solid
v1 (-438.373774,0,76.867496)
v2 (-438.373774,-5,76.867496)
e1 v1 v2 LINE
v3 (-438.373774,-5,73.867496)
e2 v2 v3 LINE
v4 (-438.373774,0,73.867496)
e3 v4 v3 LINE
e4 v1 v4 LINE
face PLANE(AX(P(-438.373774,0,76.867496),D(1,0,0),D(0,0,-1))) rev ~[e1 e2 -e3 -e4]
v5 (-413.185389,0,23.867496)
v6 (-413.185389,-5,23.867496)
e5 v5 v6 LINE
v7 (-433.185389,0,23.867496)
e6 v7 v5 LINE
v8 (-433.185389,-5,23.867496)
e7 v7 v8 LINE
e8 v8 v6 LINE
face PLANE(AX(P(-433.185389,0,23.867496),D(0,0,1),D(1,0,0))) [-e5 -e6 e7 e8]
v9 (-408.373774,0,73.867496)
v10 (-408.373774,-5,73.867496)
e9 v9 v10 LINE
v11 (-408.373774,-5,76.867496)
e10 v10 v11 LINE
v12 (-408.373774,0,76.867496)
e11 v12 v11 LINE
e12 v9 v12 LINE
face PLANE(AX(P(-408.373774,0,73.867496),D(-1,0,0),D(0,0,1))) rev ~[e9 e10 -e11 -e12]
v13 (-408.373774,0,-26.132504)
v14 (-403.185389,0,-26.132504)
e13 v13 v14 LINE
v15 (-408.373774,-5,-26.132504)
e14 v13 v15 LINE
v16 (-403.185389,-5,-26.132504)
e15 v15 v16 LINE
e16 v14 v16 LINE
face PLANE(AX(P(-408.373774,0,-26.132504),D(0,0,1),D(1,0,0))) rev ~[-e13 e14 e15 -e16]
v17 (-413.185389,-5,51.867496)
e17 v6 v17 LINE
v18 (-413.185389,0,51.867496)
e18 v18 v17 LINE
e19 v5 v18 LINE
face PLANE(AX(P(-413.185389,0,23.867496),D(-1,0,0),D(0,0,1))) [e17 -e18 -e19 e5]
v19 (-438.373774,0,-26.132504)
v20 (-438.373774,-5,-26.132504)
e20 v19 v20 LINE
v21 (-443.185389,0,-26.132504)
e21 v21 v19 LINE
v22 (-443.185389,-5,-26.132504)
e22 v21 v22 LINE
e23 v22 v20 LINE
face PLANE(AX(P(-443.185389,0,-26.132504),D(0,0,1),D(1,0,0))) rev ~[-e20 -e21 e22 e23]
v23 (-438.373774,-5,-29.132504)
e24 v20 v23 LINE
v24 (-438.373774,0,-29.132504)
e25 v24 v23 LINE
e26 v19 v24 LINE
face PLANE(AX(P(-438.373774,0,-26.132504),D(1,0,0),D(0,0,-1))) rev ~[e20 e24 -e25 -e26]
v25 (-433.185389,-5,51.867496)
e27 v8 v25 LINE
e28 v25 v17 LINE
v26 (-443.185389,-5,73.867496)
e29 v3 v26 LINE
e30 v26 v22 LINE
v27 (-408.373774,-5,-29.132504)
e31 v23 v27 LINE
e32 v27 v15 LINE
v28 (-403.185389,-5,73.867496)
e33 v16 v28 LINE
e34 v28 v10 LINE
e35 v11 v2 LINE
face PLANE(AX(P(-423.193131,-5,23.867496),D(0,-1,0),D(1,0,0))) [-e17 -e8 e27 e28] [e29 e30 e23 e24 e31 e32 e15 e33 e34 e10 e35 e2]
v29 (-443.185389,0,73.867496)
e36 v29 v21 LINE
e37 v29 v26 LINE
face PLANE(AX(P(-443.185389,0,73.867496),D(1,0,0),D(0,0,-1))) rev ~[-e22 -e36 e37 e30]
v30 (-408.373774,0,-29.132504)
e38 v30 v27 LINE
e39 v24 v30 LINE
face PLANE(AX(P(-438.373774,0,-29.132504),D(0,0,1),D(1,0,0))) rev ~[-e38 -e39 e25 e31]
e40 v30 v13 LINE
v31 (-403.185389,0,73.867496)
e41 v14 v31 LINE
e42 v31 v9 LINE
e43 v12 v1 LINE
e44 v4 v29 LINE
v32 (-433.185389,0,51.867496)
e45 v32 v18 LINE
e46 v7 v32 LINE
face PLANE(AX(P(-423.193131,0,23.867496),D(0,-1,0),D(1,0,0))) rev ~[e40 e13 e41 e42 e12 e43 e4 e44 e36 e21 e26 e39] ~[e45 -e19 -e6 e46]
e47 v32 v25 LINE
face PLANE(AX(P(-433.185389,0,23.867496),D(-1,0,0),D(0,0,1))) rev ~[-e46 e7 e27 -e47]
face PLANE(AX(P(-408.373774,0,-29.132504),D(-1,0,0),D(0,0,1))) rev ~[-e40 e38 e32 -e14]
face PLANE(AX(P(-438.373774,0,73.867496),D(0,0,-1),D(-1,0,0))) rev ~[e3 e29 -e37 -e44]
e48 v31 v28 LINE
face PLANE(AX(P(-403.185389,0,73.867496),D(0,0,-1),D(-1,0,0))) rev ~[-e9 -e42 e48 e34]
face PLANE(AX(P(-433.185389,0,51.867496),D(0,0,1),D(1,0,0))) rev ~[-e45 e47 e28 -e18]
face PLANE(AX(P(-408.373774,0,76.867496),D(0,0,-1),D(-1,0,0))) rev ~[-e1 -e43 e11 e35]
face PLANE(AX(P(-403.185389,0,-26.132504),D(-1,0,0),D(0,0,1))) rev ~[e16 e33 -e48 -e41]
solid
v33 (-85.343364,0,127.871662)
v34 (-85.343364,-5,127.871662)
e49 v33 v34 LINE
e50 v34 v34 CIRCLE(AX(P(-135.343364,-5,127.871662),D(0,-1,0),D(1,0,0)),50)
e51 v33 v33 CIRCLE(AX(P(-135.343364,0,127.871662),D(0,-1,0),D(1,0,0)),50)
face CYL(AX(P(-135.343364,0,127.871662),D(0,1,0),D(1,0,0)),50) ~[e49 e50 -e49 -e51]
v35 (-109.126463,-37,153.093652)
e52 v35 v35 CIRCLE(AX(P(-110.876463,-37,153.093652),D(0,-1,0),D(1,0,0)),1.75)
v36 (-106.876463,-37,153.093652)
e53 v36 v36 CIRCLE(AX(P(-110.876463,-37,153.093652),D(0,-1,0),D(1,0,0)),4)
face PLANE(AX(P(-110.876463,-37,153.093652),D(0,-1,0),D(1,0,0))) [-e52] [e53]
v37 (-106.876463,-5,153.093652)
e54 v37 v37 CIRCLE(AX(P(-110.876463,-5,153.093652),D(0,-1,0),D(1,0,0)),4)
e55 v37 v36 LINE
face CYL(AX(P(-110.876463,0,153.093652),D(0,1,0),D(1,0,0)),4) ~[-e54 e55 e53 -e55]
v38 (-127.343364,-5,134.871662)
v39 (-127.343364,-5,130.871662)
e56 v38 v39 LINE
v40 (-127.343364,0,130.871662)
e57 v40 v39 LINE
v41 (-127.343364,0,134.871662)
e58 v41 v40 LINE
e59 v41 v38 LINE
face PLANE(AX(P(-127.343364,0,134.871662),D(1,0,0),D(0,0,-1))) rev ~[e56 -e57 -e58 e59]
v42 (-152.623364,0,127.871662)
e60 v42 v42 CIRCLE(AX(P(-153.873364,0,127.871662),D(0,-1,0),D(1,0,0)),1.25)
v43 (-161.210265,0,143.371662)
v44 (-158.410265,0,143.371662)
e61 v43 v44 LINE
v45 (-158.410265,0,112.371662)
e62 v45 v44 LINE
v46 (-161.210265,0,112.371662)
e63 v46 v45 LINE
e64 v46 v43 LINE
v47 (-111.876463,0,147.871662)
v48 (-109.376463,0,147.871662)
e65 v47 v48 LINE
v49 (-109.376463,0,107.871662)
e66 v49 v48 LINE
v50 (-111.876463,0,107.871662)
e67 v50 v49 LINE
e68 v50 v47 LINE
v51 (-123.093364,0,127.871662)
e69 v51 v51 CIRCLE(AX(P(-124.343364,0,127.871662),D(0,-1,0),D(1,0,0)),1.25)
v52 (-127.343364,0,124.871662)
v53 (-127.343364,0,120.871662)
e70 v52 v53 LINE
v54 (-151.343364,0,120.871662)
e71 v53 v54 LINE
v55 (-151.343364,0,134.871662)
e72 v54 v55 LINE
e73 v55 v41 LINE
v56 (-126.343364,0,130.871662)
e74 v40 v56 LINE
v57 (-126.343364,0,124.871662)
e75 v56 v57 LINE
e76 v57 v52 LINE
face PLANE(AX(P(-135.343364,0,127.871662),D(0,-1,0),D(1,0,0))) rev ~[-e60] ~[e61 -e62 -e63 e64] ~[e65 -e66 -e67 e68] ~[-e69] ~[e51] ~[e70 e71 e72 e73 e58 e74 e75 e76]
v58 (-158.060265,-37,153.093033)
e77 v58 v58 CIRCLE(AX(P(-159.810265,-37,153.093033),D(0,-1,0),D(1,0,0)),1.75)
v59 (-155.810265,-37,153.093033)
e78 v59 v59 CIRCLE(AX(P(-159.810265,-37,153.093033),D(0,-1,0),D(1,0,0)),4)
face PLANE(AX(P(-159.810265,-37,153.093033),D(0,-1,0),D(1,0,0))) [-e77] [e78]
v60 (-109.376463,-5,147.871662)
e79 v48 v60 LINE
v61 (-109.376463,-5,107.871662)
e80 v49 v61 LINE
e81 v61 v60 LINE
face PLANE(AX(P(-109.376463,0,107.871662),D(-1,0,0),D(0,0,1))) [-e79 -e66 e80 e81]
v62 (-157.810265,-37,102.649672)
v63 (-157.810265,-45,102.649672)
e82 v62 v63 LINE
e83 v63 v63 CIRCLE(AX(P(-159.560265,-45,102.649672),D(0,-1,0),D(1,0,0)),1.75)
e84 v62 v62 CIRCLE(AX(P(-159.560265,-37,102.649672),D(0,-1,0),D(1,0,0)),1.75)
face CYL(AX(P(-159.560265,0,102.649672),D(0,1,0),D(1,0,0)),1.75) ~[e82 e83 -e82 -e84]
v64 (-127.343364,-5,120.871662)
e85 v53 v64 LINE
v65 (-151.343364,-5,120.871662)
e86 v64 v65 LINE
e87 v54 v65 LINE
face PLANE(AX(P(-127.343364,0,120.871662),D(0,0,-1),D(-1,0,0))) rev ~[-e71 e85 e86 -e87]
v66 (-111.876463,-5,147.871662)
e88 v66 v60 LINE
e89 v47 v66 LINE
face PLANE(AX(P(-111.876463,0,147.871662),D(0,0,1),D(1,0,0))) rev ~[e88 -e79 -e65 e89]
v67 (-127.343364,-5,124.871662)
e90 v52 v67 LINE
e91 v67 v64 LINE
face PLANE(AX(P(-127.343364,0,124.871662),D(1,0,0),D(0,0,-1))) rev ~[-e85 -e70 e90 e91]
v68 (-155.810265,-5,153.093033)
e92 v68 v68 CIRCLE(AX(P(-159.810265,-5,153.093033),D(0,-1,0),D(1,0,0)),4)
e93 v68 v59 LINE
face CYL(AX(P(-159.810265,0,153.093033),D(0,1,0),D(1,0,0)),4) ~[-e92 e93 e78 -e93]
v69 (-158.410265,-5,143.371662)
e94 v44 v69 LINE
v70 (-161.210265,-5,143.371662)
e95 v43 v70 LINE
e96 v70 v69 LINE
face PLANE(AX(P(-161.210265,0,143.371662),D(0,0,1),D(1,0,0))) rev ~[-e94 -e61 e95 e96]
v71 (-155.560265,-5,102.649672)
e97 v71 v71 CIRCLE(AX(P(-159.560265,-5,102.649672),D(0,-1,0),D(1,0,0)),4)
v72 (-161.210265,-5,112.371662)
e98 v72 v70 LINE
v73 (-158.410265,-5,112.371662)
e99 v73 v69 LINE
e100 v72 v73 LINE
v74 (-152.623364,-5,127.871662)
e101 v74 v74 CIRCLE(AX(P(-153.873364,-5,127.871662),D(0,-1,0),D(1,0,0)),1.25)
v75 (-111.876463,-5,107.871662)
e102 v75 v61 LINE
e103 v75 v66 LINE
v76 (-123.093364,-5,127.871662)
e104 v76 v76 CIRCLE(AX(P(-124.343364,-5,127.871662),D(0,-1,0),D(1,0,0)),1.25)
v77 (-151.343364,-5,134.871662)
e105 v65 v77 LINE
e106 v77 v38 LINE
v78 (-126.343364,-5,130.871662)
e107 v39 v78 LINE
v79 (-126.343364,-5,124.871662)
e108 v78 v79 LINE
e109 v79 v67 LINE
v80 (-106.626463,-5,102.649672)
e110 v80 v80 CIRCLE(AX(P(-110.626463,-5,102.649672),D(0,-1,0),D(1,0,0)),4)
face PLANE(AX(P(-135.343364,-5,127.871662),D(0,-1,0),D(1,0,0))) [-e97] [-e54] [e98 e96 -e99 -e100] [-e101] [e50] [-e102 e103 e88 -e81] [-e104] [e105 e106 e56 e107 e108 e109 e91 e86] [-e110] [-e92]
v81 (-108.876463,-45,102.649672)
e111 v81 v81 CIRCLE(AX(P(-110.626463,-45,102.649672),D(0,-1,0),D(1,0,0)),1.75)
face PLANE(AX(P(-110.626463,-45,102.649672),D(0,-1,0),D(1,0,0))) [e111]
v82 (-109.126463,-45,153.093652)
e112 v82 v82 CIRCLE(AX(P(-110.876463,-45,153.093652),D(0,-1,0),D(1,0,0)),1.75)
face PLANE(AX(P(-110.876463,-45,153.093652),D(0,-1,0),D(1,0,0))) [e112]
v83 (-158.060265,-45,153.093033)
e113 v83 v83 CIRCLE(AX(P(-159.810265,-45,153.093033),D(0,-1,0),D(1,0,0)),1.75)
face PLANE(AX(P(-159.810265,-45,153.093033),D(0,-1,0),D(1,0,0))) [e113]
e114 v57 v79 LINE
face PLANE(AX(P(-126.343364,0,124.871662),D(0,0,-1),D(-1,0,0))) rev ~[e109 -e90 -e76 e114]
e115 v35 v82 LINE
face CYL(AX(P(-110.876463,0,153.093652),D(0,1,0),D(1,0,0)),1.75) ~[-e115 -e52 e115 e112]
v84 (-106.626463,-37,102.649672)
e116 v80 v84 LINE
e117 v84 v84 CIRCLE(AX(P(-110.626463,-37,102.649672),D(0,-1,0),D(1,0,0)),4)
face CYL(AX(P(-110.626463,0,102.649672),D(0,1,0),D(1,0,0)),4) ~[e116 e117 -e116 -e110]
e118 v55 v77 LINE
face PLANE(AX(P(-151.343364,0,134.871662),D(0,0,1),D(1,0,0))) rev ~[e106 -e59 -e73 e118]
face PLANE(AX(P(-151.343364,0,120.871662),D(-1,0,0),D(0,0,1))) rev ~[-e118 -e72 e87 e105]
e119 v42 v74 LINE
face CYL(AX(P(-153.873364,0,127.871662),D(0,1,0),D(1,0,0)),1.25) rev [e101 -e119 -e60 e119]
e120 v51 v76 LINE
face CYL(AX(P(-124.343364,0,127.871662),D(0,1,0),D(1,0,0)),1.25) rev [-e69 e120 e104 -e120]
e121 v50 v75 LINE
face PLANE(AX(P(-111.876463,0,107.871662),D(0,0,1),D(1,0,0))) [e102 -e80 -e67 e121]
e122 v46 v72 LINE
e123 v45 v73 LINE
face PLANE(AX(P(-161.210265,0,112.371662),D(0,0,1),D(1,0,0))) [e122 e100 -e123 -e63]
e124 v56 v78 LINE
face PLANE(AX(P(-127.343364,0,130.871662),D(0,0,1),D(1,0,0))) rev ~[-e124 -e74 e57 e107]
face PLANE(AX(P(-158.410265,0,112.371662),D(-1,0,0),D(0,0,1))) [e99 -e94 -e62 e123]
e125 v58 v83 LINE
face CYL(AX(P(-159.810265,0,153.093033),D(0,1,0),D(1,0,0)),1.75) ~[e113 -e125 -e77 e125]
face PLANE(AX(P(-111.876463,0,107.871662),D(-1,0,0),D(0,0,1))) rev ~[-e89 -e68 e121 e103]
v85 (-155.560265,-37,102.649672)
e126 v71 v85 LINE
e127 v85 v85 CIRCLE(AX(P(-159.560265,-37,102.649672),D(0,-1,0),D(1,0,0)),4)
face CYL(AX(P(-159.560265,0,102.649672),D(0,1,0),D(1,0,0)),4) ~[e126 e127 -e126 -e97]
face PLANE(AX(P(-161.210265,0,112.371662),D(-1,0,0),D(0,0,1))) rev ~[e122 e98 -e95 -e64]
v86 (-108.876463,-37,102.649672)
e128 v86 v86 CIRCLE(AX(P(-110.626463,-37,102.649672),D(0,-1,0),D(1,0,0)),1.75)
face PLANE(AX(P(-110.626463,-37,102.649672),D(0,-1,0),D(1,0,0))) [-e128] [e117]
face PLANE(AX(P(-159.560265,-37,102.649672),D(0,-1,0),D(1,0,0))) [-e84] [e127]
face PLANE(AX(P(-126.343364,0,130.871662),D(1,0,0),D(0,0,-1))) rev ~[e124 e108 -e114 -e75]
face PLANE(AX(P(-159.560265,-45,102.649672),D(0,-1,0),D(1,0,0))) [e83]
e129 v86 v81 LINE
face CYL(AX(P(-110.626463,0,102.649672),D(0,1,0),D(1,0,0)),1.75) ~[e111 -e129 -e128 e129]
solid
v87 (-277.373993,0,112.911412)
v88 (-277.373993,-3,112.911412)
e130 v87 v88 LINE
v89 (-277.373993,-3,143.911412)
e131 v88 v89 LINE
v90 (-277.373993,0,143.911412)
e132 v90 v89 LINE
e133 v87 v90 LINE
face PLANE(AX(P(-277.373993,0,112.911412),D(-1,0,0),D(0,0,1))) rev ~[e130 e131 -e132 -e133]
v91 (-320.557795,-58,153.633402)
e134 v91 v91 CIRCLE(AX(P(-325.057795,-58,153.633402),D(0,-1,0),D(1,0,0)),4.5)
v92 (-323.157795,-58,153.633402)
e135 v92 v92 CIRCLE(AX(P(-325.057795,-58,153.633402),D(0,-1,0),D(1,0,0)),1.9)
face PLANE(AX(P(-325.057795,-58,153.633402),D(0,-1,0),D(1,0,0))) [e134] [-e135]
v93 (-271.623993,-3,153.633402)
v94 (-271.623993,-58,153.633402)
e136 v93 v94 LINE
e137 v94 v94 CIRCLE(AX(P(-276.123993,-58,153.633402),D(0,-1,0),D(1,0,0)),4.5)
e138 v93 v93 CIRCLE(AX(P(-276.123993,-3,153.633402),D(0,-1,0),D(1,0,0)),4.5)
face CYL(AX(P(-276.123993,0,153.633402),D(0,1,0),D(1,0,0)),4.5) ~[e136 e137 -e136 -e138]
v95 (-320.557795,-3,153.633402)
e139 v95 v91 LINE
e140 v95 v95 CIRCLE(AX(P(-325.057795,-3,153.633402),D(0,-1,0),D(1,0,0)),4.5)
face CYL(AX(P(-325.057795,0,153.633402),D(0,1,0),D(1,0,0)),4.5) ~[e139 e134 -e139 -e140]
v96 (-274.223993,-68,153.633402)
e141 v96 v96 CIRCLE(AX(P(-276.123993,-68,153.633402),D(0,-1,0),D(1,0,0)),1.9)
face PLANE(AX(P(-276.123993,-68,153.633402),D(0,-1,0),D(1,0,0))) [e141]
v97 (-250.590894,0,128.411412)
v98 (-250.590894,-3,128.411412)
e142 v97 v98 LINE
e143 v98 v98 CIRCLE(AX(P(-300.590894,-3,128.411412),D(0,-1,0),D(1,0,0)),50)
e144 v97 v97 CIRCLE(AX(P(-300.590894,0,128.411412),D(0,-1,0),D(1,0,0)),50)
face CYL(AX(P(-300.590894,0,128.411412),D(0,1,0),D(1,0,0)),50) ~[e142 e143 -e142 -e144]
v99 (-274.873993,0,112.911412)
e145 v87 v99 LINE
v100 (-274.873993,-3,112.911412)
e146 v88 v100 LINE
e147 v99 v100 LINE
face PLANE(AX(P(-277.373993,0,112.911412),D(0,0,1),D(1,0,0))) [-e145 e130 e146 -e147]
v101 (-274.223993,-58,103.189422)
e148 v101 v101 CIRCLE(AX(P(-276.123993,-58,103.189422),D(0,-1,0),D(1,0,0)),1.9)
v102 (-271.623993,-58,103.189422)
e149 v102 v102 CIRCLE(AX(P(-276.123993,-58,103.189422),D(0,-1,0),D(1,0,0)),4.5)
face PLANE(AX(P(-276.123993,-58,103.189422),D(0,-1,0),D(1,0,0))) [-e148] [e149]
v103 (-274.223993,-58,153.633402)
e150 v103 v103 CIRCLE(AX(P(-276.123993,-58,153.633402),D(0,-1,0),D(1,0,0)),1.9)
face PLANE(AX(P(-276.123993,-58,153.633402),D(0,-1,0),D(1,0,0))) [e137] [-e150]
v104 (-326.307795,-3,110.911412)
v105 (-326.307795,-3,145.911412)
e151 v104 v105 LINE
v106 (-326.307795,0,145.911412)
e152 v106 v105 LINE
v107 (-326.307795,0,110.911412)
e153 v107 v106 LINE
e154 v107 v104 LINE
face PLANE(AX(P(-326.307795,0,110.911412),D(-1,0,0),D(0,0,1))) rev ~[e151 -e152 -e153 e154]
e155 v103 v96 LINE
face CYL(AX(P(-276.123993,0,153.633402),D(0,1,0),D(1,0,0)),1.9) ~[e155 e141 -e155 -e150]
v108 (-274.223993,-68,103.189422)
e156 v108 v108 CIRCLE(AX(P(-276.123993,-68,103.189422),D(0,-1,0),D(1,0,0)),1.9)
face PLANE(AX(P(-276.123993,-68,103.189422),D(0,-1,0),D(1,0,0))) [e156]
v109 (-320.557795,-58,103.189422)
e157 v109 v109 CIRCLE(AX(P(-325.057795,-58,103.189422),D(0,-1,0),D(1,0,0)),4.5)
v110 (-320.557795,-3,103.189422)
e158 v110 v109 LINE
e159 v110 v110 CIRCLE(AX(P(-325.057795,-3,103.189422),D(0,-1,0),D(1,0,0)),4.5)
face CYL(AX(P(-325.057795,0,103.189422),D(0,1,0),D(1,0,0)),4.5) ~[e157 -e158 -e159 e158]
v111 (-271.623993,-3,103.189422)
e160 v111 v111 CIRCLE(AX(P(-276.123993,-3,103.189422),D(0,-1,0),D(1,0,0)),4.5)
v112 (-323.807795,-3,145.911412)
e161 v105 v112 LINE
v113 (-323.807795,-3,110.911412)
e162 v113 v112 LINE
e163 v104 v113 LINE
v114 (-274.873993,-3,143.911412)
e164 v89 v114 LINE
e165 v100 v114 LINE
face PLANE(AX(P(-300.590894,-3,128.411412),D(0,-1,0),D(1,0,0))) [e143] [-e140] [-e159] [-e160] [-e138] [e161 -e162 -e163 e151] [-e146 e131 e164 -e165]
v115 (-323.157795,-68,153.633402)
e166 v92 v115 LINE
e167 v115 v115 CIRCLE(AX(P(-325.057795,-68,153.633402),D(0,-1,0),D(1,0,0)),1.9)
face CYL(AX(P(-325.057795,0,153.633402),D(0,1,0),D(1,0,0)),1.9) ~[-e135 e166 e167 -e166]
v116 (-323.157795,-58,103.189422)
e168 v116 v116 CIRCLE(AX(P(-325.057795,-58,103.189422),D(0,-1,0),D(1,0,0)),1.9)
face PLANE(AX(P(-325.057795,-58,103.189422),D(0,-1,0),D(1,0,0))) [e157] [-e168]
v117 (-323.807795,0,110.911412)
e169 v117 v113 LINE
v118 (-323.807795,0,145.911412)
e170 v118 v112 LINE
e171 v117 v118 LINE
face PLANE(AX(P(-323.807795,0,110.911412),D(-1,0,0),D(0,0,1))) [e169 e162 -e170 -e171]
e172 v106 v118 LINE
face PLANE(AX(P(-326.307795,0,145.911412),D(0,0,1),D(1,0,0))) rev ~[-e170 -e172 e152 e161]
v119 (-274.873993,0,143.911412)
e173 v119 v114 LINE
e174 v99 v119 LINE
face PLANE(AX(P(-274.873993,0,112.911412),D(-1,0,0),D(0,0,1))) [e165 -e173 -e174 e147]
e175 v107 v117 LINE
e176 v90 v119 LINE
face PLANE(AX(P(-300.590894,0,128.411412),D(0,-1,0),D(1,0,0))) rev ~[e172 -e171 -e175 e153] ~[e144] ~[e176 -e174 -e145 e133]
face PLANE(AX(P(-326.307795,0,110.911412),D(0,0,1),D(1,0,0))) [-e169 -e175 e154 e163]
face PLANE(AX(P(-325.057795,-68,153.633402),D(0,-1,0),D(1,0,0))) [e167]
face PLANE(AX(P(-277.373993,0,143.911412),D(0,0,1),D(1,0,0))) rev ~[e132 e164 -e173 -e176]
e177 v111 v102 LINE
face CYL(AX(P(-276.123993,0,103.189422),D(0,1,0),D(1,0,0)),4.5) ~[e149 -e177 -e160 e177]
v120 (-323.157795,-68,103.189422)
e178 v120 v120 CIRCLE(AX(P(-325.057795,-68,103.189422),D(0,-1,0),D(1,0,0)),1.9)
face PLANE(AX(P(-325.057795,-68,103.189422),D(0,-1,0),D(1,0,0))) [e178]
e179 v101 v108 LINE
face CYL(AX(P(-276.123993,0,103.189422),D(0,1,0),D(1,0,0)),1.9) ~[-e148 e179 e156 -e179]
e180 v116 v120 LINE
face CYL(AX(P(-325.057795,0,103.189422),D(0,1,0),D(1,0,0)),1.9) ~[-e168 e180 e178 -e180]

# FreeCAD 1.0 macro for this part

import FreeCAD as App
import Part
import Sketcher
from FreeCAD import Vector
Q = App.Units.Quantity

doc = App.newDocument("Part")
body = doc.addObject("PartDesign::Body", "Body")

# Sketch on XZ plane
sketch1 = body.newObject("Sketcher::SketchObject", "Sketch")
sketch1.AttachmentSupport = (doc.getObject("XZ_Plane"), [""])
sketch1.MapMode = "FlatFace"
sketch1.addGeometry(Part.Circle(Vector(-135.3, 127.9, 0), Vector(0, 0, 1), 50), False)
sketch1.addGeometry(Part.Circle(Vector(-159.6, 102.6, 0), Vector(0, 0, 1), 4), False)
sketch1.addGeometry(Part.Circle(Vector(-110.6, 102.6, 0), Vector(0, 0, 1), 4), False)
sketch1.addGeometry(Part.LineSegment(Vector(-158.4, 112.4, 0), Vector(-161.2, 112.4, 0)), False)
sketch1.addGeometry(Part.LineSegment(Vector(-161.2, 112.4, 0), Vector(-161.2, 143.4, 0)), False)
sketch1.addGeometry(Part.LineSegment(Vector(-161.2, 143.4, 0), Vector(-158.4, 143.4, 0)), False)
sketch1.addGeometry(Part.LineSegment(Vector(-158.4, 143.4, 0), Vector(-158.4, 112.4, 0)), False)
sketch1.addGeometry(Part.Circle(Vector(-153.9, 127.9, 0), Vector(0, 0, 1), 1.2), False)
sketch1.addGeometry(Part.LineSegment(Vector(-151.3, 120.9, 0), Vector(-151.3, 134.9, 0)), False)
sketch1.addGeometry(Part.LineSegment(Vector(-151.3, 134.9, 0), Vector(-127.3, 134.9, 0)), False)
sketch1.addGeometry(Part.LineSegment(Vector(-127.3, 134.9, 0), Vector(-127.3, 130.9, 0)), False)
sketch1.addGeometry(Part.LineSegment(Vector(-127.3, 130.9, 0), Vector(-126.3, 130.9, 0)), False)
sketch1.addGeometry(Part.LineSegment(Vector(-126.3, 130.9, 0), Vector(-126.3, 124.9, 0)), False)
sketch1.addGeometry(Part.LineSegment(Vector(-126.3, 124.9, 0), Vector(-127.3, 124.9, 0)), False)
sketch1.addGeometry(Part.LineSegment(Vector(-127.3, 124.9, 0), Vector(-127.3, 120.9, 0)), False)
sketch1.addGeometry(Part.LineSegment(Vector(-127.3, 120.9, 0), Vector(-151.3, 120.9, 0)), False)
sketch1.addGeometry(Part.Circle(Vector(-159.8, 153.1, 0), Vector(0, 0, 1), 4), False)
sketch1.addGeometry(Part.Circle(Vector(-124.3, 127.9, 0), Vector(0, 0, 1), 1.2), False)
sketch1.addGeometry(Part.LineSegment(Vector(-109.4, 107.9, 0), Vector(-111.9, 107.9, 0)), False)
sketch1.addGeometry(Part.LineSegment(Vector(-111.9, 107.9, 0), Vector(-111.9, 147.9, 0)), False)
sketch1.addGeometry(Part.LineSegment(Vector(-111.9, 147.9, 0), Vector(-109.4, 147.9, 0)), False)
sketch1.addGeometry(Part.LineSegment(Vector(-109.4, 147.9, 0), Vector(-109.4, 107.9, 0)), False)
sketch1.addGeometry(Part.Circle(Vector(-110.9, 153.1, 0), Vector(0, 0, 1), 4), False)
sketch1.addConstraint(Sketcher.Constraint("Coincident", 3, 2, 4, 1))
sketch1.addConstraint(Sketcher.Constraint("Coincident", 4, 2, 5, 1))
sketch1.addConstraint(Sketcher.Constraint("Coincident", 5, 2, 6, 1))
sketch1.addConstraint(Sketcher.Constraint("Coincident", 6, 2, 3, 1))
sketch1.addConstraint(Sketcher.Constraint("Coincident", 8, 2, 9, 1))
sketch1.addConstraint(Sketcher.Constraint("Coincident", 9, 2, 10, 1))
sketch1.addConstraint(Sketcher.Constraint("Coincident", 10, 2, 11, 1))
sketch1.addConstraint(Sketcher.Constraint("Coincident", 11, 2, 12, 1))
sketch1.addConstraint(Sketcher.Constraint("Coincident", 12, 2, 13, 1))
sketch1.addConstraint(Sketcher.Constraint("Coincident", 13, 2, 14, 1))
sketch1.addConstraint(Sketcher.Constraint("Coincident", 14, 2, 15, 1))
sketch1.addConstraint(Sketcher.Constraint("Coincident", 15, 2, 8, 1))
sketch1.addConstraint(Sketcher.Constraint("Coincident", 18, 2, 19, 1))
sketch1.addConstraint(Sketcher.Constraint("Coincident", 19, 2, 20, 1))
sketch1.addConstraint(Sketcher.Constraint("Coincident", 20, 2, 21, 1))
sketch1.addConstraint(Sketcher.Constraint("Coincident", 21, 2, 18, 1))
sketch1.addConstraint(Sketcher.Constraint("Horizontal", 3))
sketch1.addConstraint(Sketcher.Constraint("Vertical", 4))
sketch1.addConstraint(Sketcher.Constraint("Horizontal", 5))
sketch1.addConstraint(Sketcher.Constraint("Vertical", 6))
sketch1.addConstraint(Sketcher.Constraint("Vertical", 8))
sketch1.addConstraint(Sketcher.Constraint("Horizontal", 9))
sketch1.addConstraint(Sketcher.Constraint("Vertical", 10))
sketch1.addConstraint(Sketcher.Constraint("Horizontal", 11))
sketch1.addConstraint(Sketcher.Constraint("Vertical", 12))
sketch1.addConstraint(Sketcher.Constraint("Horizontal", 13))
sketch1.addConstraint(Sketcher.Constraint("Vertical", 14))
sketch1.addConstraint(Sketcher.Constraint("Horizontal", 15))
sketch1.addConstraint(Sketcher.Constraint("Horizontal", 18))
sketch1.addConstraint(Sketcher.Constraint("Vertical", 19))
sketch1.addConstraint(Sketcher.Constraint("Horizontal", 20))
sketch1.addConstraint(Sketcher.Constraint("Vertical", 21))
sketch1.addConstraint(Sketcher.Constraint("Equal", 1, 2))
sketch1.addConstraint(Sketcher.Constraint("Equal", 2, 16))
sketch1.addConstraint(Sketcher.Constraint("Equal", 7, 17))
sketch1.addConstraint(Sketcher.Constraint("Equal", 16, 22))
sketch1.addConstraint(Sketcher.Constraint("Horizontal", 1, 3, 2, 3))
sketch1.addConstraint(Sketcher.Constraint("Horizontal", 0, 3, 7, 3))
sketch1.addConstraint(Sketcher.Constraint("Horizontal", 7, 3, 17, 3))
sketch1.addConstraint(Sketcher.Constraint("Vertical", 10, 2, 13, 2))
sketch1.addConstraint(Sketcher.Constraint("Equal", 10, 14))
sketch1.addConstraint(Sketcher.Constraint("Diameter", 0, Q("100 mm")))
sketch1.addConstraint(Sketcher.Constraint("Diameter", 1, Q("8 mm")))
sketch1.addConstraint(Sketcher.Constraint("Diameter", 7, Q("2.5 mm")))
sketch1.addConstraint(Sketcher.Constraint("DistanceX", 9, 1, 9, 2, Q("24 mm")))
sketch1.addConstraint(Sketcher.Constraint("DistanceX", 11, 1, 11, 2, Q("1 mm")))
sketch1.addConstraint(Sketcher.Constraint("DistanceY", 4, 1, 4, 2, Q("31 mm")))
sketch1.addConstraint(Sketcher.Constraint("DistanceY", 8, 1, 8, 2, Q("14 mm")))
sketch1.addConstraint(Sketcher.Constraint("DistanceY", 10, 2, 10, 1, Q("4 mm")))
sketch1.addConstraint(Sketcher.Constraint("DistanceY", 19, 1, 19, 2, Q("40 mm")))
sketch1.addConstraint(Sketcher.Constraint("DistanceX", 3, 2, 3, 1, Q("2.8 mm")))
sketch1.addConstraint(Sketcher.Constraint("DistanceX", 18, 2, 18, 1, Q("2.5 mm")))
sketch1.addConstraint(Sketcher.Constraint("DistanceX", 0, 3, 17, 3, Q("11 mm")))
sketch1.addConstraint(Sketcher.Constraint("DistanceY", 7, 3, 8, 2, Q("7 mm")))
sketch1.addConstraint(Sketcher.Constraint("DistanceX", 8, 2, 0, 3, Q("16 mm")))
sketch1.addConstraint(Sketcher.Constraint("DistanceY", 18, 2, 14, 2, Q("13 mm")))
sketch1.addConstraint(Sketcher.Constraint("DistanceX", 19, 2, 22, 3, Q("1 mm")))
sketch1.addConstraint(Sketcher.Constraint("DistanceY", 3, 2, 7, 3, Q("15.5 mm")))
sketch1.addConstraint(Sketcher.Constraint("DistanceX", 3, 2, 16, 3, Q("1.4 mm")))
sketch1.addConstraint(Sketcher.Constraint("DistanceX", 7, 3, 0, 3, Q("18.53 mm")))
sketch1.addConstraint(Sketcher.Constraint("DistanceX", 16, 3, 1, 3, Q("0.25 mm")))
sketch1.addConstraint(Sketcher.Constraint("DistanceX", 22, 3, 2, 3, Q("0.25 mm")))
sketch1.addConstraint(Sketcher.Constraint("DistanceX", 1, 3, 0, 3, Q("24.216901 mm")))
sketch1.addConstraint(Sketcher.Constraint("DistanceX", 0, 3, 2, 3, Q("24.716901 mm")))
sketch1.addConstraint(Sketcher.Constraint("DistanceY", -1, 1, 0, 3, Q("127.871662 mm")))
sketch1.addConstraint(Sketcher.Constraint("DistanceY", -1, 1, 1, 3, Q("102.649672 mm")))
sketch1.addConstraint(Sketcher.Constraint("DistanceY", -1, 1, 22, 3, Q("153.093652 mm")))
sketch1.addConstraint(Sketcher.Constraint("DistanceY", 7, 3, 16, 3, Q("25.221371 mm")))
sketch1.addConstraint(Sketcher.Constraint("DistanceX", 0, 3, -1, 1, Q("135.343364 mm")))
pad1 = body.newObject("PartDesign::Pad", "Pad")
pad1.Profile = sketch1
pad1.Length = 5

# Sketch on XZ plane
sketch2 = body.newObject("Sketcher::SketchObject", "Sketch001")
sketch2.AttachmentSupport = (doc.getObject("XZ_Plane"), [""])
sketch2.MapMode = "FlatFace"
sketch2.addGeometry(Part.Circle(Vector(-159.6, 102.6, 0), Vector(0, 0, 1), 4), False)
sketch2.addGeometry(Part.Circle(Vector(-159.6, 102.6, 0), Vector(0, 0, 1), 1.8), False)
sketch2.addGeometry(Part.Circle(Vector(-110.6, 102.6, 0), Vector(0, 0, 1), 4), False)
sketch2.addGeometry(Part.Circle(Vector(-110.6, 102.6, 0), Vector(0, 0, 1), 1.8), False)
sketch2.addGeometry(Part.Circle(Vector(-110.9, 153.1, 0), Vector(0, 0, 1), 4), False)
sketch2.addGeometry(Part.Circle(Vector(-110.9, 153.1, 0), Vector(0, 0, 1), 1.8), False)
sketch2.addGeometry(Part.Circle(Vector(-159.8, 153.1, 0), Vector(0, 0, 1), 4), False)
sketch2.addGeometry(Part.Circle(Vector(-159.8, 153.1, 0), Vector(0, 0, 1), 1.8), False)
sketch2.addConstraint(Sketcher.Constraint("Coincident", 1, 3, 0, 3))
sketch2.addConstraint(Sketcher.Constraint("Coincident", 3, 3, 2, 3))
sketch2.addConstraint(Sketcher.Constraint("Coincident", 5, 3, 4, 3))
sketch2.addConstraint(Sketcher.Constraint("Coincident", 7, 3, 6, 3))
sketch2.addConstraint(Sketcher.Constraint("Equal", 0, 2))
sketch2.addConstraint(Sketcher.Constraint("Equal", 1, 3))
sketch2.addConstraint(Sketcher.Constraint("Equal", 2, 4))
sketch2.addConstraint(Sketcher.Constraint("Equal", 3, 5))
sketch2.addConstraint(Sketcher.Constraint("Equal", 4, 6))
sketch2.addConstraint(Sketcher.Constraint("Equal", 5, 7))
sketch2.addConstraint(Sketcher.Constraint("Horizontal", 1, 3, 2, 3))
sketch2.addConstraint(Sketcher.Constraint("Diameter", 0, Q("8 mm")))
sketch2.addConstraint(Sketcher.Constraint("Diameter", 1, Q("3.5 mm")))
sketch2.addConstraint(Sketcher.Constraint("DistanceX", 4, 3, 2, 3, Q("0.25 mm")))
sketch2.addConstraint(Sketcher.Constraint("DistanceX", 6, 3, 0, 3, Q("0.25 mm")))
sketch2.addConstraint(Sketcher.Constraint("DistanceX", 0, 3, 2, 3, Q("48.933802 mm")))
sketch2.addConstraint(Sketcher.Constraint("DistanceY", -1, 1, 0, 3, Q("102.649672 mm")))
sketch2.addConstraint(Sketcher.Constraint("DistanceY", -1, 1, 4, 3, Q("153.093652 mm")))
sketch2.addConstraint(Sketcher.Constraint("DistanceY", 6, 3, 4, 3, Q("0.000619 mm")))
sketch2.addConstraint(Sketcher.Constraint("DistanceX", 0, 3, -1, 1, Q("159.560265 mm")))
pad2 = body.newObject("PartDesign::Pad", "Pad001")
pad2.Profile = sketch2
pad2.Length = 37

# Sketch on XZ plane
sketch3 = body.newObject("Sketcher::SketchObject", "Sketch002")
sketch3.AttachmentSupport = (doc.getObject("XZ_Plane"), [""])
sketch3.MapMode = "FlatFace"
sketch3.addGeometry(Part.Circle(Vector(-159.8, 153.1, 0), Vector(0, 0, 1), 1.8), False)
sketch3.addGeometry(Part.Circle(Vector(-110.9, 153.1, 0), Vector(0, 0, 1), 1.8), False)
sketch3.addGeometry(Part.Circle(Vector(-110.6, 102.6, 0), Vector(0, 0, 1), 1.8), False)
sketch3.addGeometry(Part.Circle(Vector(-159.6, 102.6, 0), Vector(0, 0, 1), 1.8), False)
sketch3.addConstraint(Sketcher.Constraint("Equal", 0, 1))
sketch3.addConstraint(Sketcher.Constraint("Equal", 1, 2))
sketch3.addConstraint(Sketcher.Constraint("Equal", 2, 3))
sketch3.addConstraint(Sketcher.Constraint("Horizontal", 2, 3, 3, 3))
sketch3.addConstraint(Sketcher.Constraint("Diameter", 0, Q("3.5 mm")))
sketch3.addConstraint(Sketcher.Constraint("DistanceX", 1, 3, 2, 3, Q("0.25 mm")))
sketch3.addConstraint(Sketcher.Constraint("DistanceX", 0, 3, 3, 3, Q("0.25 mm")))
sketch3.addConstraint(Sketcher.Constraint("DistanceX", 0, 3, 1, 3, Q("48.933802 mm")))
sketch3.addConstraint(Sketcher.Constraint("DistanceY", -1, 1, 1, 3, Q("153.093652 mm")))
sketch3.addConstraint(Sketcher.Constraint("DistanceY", -1, 1, 2, 3, Q("102.649672 mm")))
sketch3.addConstraint(Sketcher.Constraint("DistanceY", 0, 3, 1, 3, Q("0.000619 mm")))
sketch3.addConstraint(Sketcher.Constraint("DistanceX", 0, 3, -1, 1, Q("159.810265 mm")))
pad3 = body.newObject("PartDesign::Pad", "Pad002")
pad3.Profile = sketch3
pad3.Length = 45
body2 = doc.addObject("PartDesign::Body", "Body001")

# Sketch on XZ plane
sketch4 = body2.newObject("Sketcher::SketchObject", "Sketch003")
sketch4.AttachmentSupport = (doc.getObject("XZ_Plane001"), [""])
sketch4.MapMode = "FlatFace"
sketch4.addGeometry(Part.LineSegment(Vector(-408.4, -26.1, 0), Vector(-403.2, -26.1, 0)), False)
sketch4.addGeometry(Part.LineSegment(Vector(-403.2, -26.1, 0), Vector(-403.2, 73.9, 0)), False)
sketch4.addGeometry(Part.LineSegment(Vector(-403.2, 73.9, 0), Vector(-408.4, 73.9, 0)), False)
sketch4.addGeometry(Part.LineSegment(Vector(-408.4, 73.9, 0), Vector(-408.4, 76.9, 0)), False)
sketch4.addGeometry(Part.LineSegment(Vector(-408.4, 76.9, 0), Vector(-438.4, 76.9, 0)), False)
sketch4.addGeometry(Part.LineSegment(Vector(-438.4, 76.9, 0), Vector(-438.4, 73.9, 0)), False)
sketch4.addGeometry(Part.LineSegment(Vector(-438.4, 73.9, 0), Vector(-443.2, 73.9, 0)), False)
sketch4.addGeometry(Part.LineSegment(Vector(-443.2, 73.9, 0), Vector(-443.2, -26.1, 0)), False)
sketch4.addGeometry(Part.LineSegment(Vector(-443.2, -26.1, 0), Vector(-438.4, -26.1, 0)), False)
sketch4.addGeometry(Part.LineSegment(Vector(-438.4, -26.1, 0), Vector(-438.4, -29.1, 0)), False)
sketch4.addGeometry(Part.LineSegment(Vector(-438.4, -29.1, 0), Vector(-408.4, -29.1, 0)), False)
sketch4.addGeometry(Part.LineSegment(Vector(-408.4, -29.1, 0), Vector(-408.4, -26.1, 0)), False)
sketch4.addGeometry(Part.LineSegment(Vector(-413.2, 23.9, 0), Vector(-433.2, 23.9, 0)), False)
sketch4.addGeometry(Part.LineSegment(Vector(-433.2, 23.9, 0), Vector(-433.2, 51.9, 0)), False)
sketch4.addGeometry(Part.LineSegment(Vector(-433.2, 51.9, 0), Vector(-413.2, 51.9, 0)), False)
sketch4.addGeometry(Part.LineSegment(Vector(-413.2, 51.9, 0), Vector(-413.2, 23.9, 0)), False)
sketch4.addConstraint(Sketcher.Constraint("Coincident", 0, 2, 1, 1))
sketch4.addConstraint(Sketcher.Constraint("Coincident", 1, 2, 2, 1))
sketch4.addConstraint(Sketcher.Constraint("Coincident", 2, 2, 3, 1))
sketch4.addConstraint(Sketcher.Constraint("Coincident", 3, 2, 4, 1))
sketch4.addConstraint(Sketcher.Constraint("Coincident", 4, 2, 5, 1))
sketch4.addConstraint(Sketcher.Constraint("Coincident", 5, 2, 6, 1))
sketch4.addConstraint(Sketcher.Constraint("Coincident", 6, 2, 7, 1))
sketch4.addConstraint(Sketcher.Constraint("Coincident", 7, 2, 8, 1))
sketch4.addConstraint(Sketcher.Constraint("Coincident", 8, 2, 9, 1))
sketch4.addConstraint(Sketcher.Constraint("Coincident", 9, 2, 10, 1))
sketch4.addConstraint(Sketcher.Constraint("Coincident", 10, 2, 11, 1))
sketch4.addConstraint(Sketcher.Constraint("Coincident", 11, 2, 0, 1))
sketch4.addConstraint(Sketcher.Constraint("Coincident", 12, 2, 13, 1))
sketch4.addConstraint(Sketcher.Constraint("Coincident", 13, 2, 14, 1))
sketch4.addConstraint(Sketcher.Constraint("Coincident", 14, 2, 15, 1))
sketch4.addConstraint(Sketcher.Constraint("Coincident", 15, 2, 12, 1))
sketch4.addConstraint(Sketcher.Constraint("Horizontal", 0))
sketch4.addConstraint(Sketcher.Constraint("Vertical", 1))
sketch4.addConstraint(Sketcher.Constraint("Horizontal", 2))
sketch4.addConstraint(Sketcher.Constraint("Vertical", 3))
sketch4.addConstraint(Sketcher.Constraint("Horizontal", 4))
sketch4.addConstraint(Sketcher.Constraint("Vertical", 5))
sketch4.addConstraint(Sketcher.Constraint("Horizontal", 6))
sketch4.addConstraint(Sketcher.Constraint("Vertical", 7))
sketch4.addConstraint(Sketcher.Constraint("Horizontal", 8))
sketch4.addConstraint(Sketcher.Constraint("Vertical", 9))
sketch4.addConstraint(Sketcher.Constraint("Horizontal", 10))
sketch4.addConstraint(Sketcher.Constraint("Vertical", 11))
sketch4.addConstraint(Sketcher.Constraint("Horizontal", 12))
sketch4.addConstraint(Sketcher.Constraint("Vertical", 13))
sketch4.addConstraint(Sketcher.Constraint("Horizontal", 14))
sketch4.addConstraint(Sketcher.Constraint("Vertical", 15))
sketch4.addConstraint(Sketcher.Constraint("Horizontal", 2, 2, 5, 2))
sketch4.addConstraint(Sketcher.Constraint("Horizontal", 0, 2, 7, 2))
sketch4.addConstraint(Sketcher.Constraint("Vertical", 5, 2, 8, 2))
sketch4.addConstraint(Sketcher.Constraint("Vertical", 3, 2, 10, 2))
sketch4.addConstraint(Sketcher.Constraint("Equal", 5, 9))
sketch4.addConstraint(Sketcher.Constraint("DistanceX", 4, 2, 4, 1, Q("30 mm")))
sketch4.addConstraint(Sketcher.Constraint("DistanceX", 12, 2, 12, 1, Q("20 mm")))
sketch4.addConstraint(Sketcher.Constraint("DistanceY", 1, 1, 1, 2, Q("100 mm")))
sketch4.addConstraint(Sketcher.Constraint("DistanceY", 3, 1, 3, 2, Q("3 mm")))
sketch4.addConstraint(Sketcher.Constraint("DistanceY", 13, 1, 13, 2, Q("28 mm")))
sketch4.addConstraint(Sketcher.Constraint("DistanceX", 6, 2, 1, 2, Q("40 mm")))
sketch4.addConstraint(Sketcher.Constraint("DistanceY", 12, 2, 5, 2, Q("50 mm")))
sketch4.addConstraint(Sketcher.Constraint("DistanceX", 6, 2, 12, 2, Q("10 mm")))
sketch4.addConstraint(Sketcher.Constraint("DistanceX", 0, 1, 0, 2, Q("5.188385 mm")))
sketch4.addConstraint(Sketcher.Constraint("DistanceX", 0, 2, -1, 1, Q("403.185389 mm")))
sketch4.addConstraint(Sketcher.Constraint("DistanceY", 0, 2, -1, 1, Q("26.132504 mm")))
pad4 = body2.newObject("PartDesign::Pad", "Pad003")
pad4.Profile = sketch4
pad4.Length = 5
body3 = doc.addObject("PartDesign::Body", "Body002")

# Sketch on XZ plane
sketch5 = body3.newObject("Sketcher::SketchObject", "Sketch004")
sketch5.AttachmentSupport = (doc.getObject("XZ_Plane002"), [""])
sketch5.MapMode = "FlatFace"
sketch5.addGeometry(Part.Circle(Vector(-300.6, 128.4, 0), Vector(0, 0, 1), 50), False)
sketch5.addGeometry(Part.Circle(Vector(-325.1, 103.2, 0), Vector(0, 0, 1), 4.5), False)
sketch5.addGeometry(Part.Circle(Vector(-276.1, 103.2, 0), Vector(0, 0, 1), 4.5), False)
sketch5.addGeometry(Part.LineSegment(Vector(-323.8, 110.9, 0), Vector(-326.3, 110.9, 0)), False)
sketch5.addGeometry(Part.LineSegment(Vector(-326.3, 110.9, 0), Vector(-326.3, 145.9, 0)), False)
sketch5.addGeometry(Part.LineSegment(Vector(-326.3, 145.9, 0), Vector(-323.8, 145.9, 0)), False)
sketch5.addGeometry(Part.LineSegment(Vector(-323.8, 145.9, 0), Vector(-323.8, 110.9, 0)), False)
sketch5.addGeometry(Part.Circle(Vector(-325.1, 153.6, 0), Vector(0, 0, 1), 4.5), False)
sketch5.addGeometry(Part.LineSegment(Vector(-274.9, 112.9, 0), Vector(-277.4, 112.9, 0)), False)
sketch5.addGeometry(Part.LineSegment(Vector(-277.4, 112.9, 0), Vector(-277.4, 143.9, 0)), False)
sketch5.addGeometry(Part.LineSegment(Vector(-277.4, 143.9, 0), Vector(-274.9, 143.9, 0)), False)
sketch5.addGeometry(Part.LineSegment(Vector(-274.9, 143.9, 0), Vector(-274.9, 112.9, 0)), False)
sketch5.addGeometry(Part.Circle(Vector(-276.1, 153.6, 0), Vector(0, 0, 1), 4.5), False)
sketch5.addConstraint(Sketcher.Constraint("Coincident", 3, 2, 4, 1))
sketch5.addConstraint(Sketcher.Constraint("Coincident", 4, 2, 5, 1))
sketch5.addConstraint(Sketcher.Constraint("Coincident", 5, 2, 6, 1))
sketch5.addConstraint(Sketcher.Constraint("Coincident", 6, 2, 3, 1))
sketch5.addConstraint(Sketcher.Constraint("Coincident", 8, 2, 9, 1))
sketch5.addConstraint(Sketcher.Constraint("Coincident", 9, 2, 10, 1))
sketch5.addConstraint(Sketcher.Constraint("Coincident", 10, 2, 11, 1))
sketch5.addConstraint(Sketcher.Constraint("Coincident", 11, 2, 8, 1))
sketch5.addConstraint(Sketcher.Constraint("Horizontal", 3))
sketch5.addConstraint(Sketcher.Constraint("Vertical", 4))
sketch5.addConstraint(Sketcher.Constraint("Horizontal", 5))
sketch5.addConstraint(Sketcher.Constraint("Vertical", 6))
sketch5.addConstraint(Sketcher.Constraint("Horizontal", 8))
sketch5.addConstraint(Sketcher.Constraint("Vertical", 9))
sketch5.addConstraint(Sketcher.Constraint("Horizontal", 10))
sketch5.addConstraint(Sketcher.Constraint("Vertical", 11))
sketch5.addConstraint(Sketcher.Constraint("Equal", 1, 2))
sketch5.addConstraint(Sketcher.Constraint("Equal", 2, 7))
sketch5.addConstraint(Sketcher.Constraint("Equal", 7, 12))
sketch5.addConstraint(Sketcher.Constraint("Horizontal", 1, 3, 2, 3))
sketch5.addConstraint(Sketcher.Constraint("Horizontal", 7, 3, 12, 3))
sketch5.addConstraint(Sketcher.Constraint("Vertical", 1, 3, 7, 3))
sketch5.addConstraint(Sketcher.Constraint("Vertical", 2, 3, 12, 3))
sketch5.addConstraint(Sketcher.Constraint("Equal", 5, 8))
sketch5.addConstraint(Sketcher.Constraint("Diameter", 0, Q("100 mm")))
sketch5.addConstraint(Sketcher.Constraint("Diameter", 1, Q("9 mm")))
sketch5.addConstraint(Sketcher.Constraint("DistanceY", 4, 1, 4, 2, Q("35 mm")))
sketch5.addConstraint(Sketcher.Constraint("DistanceY", 9, 1, 9, 2, Q("31 mm")))
sketch5.addConstraint(Sketcher.Constraint("DistanceX", 3, 2, 3, 1, Q("2.5 mm")))
sketch5.addConstraint(Sketcher.Constraint("DistanceY", 6, 2, 8, 2, Q("2 mm")))
sketch5.addConstraint(Sketcher.Constraint("DistanceY", 3, 2, 0, 3, Q("17.5 mm")))
sketch5.addConstraint(Sketcher.Constraint("DistanceX", 3, 2, 1, 3, Q("1.25 mm")))
sketch5.addConstraint(Sketcher.Constraint("DistanceX", 8, 2, 2, 3, Q("1.25 mm")))
sketch5.addConstraint(Sketcher.Constraint("DistanceY", -1, 1, 7, 3, Q("153.633402 mm")))
sketch5.addConstraint(Sketcher.Constraint("DistanceX", 1, 3, 0, 3, Q("24.466901 mm")))
sketch5.addConstraint(Sketcher.Constraint("DistanceX", 0, 3, 2, 3, Q("24.466901 mm")))
sketch5.addConstraint(Sketcher.Constraint("DistanceY", -1, 1, 1, 3, Q("103.189422 mm")))
sketch5.addConstraint(Sketcher.Constraint("DistanceY", -1, 1, 3, 2, Q("110.911412 mm")))
sketch5.addConstraint(Sketcher.Constraint("DistanceX", 0, 3, -1, 1, Q("300.590894 mm")))
pad5 = body3.newObject("PartDesign::Pad", "Pad004")
pad5.Profile = sketch5
pad5.Length = 3

# Sketch on XZ plane
sketch6 = body3.newObject("Sketcher::SketchObject", "Sketch005")
sketch6.AttachmentSupport = (doc.getObject("XZ_Plane002"), [""])
sketch6.MapMode = "FlatFace"
sketch6.addGeometry(Part.Circle(Vector(-325.1, 153.6, 0), Vector(0, 0, 1), 4.5), False)
sketch6.addGeometry(Part.Circle(Vector(-325.1, 153.6, 0), Vector(0, 0, 1), 1.9), False)
sketch6.addGeometry(Part.Circle(Vector(-276.1, 153.6, 0), Vector(0, 0, 1), 4.5), False)
sketch6.addGeometry(Part.Circle(Vector(-276.1, 153.6, 0), Vector(0, 0, 1), 1.9), False)
sketch6.addGeometry(Part.Circle(Vector(-276.1, 103.2, 0), Vector(0, 0, 1), 4.5), False)
sketch6.addGeometry(Part.Circle(Vector(-276.1, 103.2, 0), Vector(0, 0, 1), 1.9), False)
sketch6.addGeometry(Part.Circle(Vector(-325.1, 103.2, 0), Vector(0, 0, 1), 4.5), False)
sketch6.addGeometry(Part.Circle(Vector(-325.1, 103.2, 0), Vector(0, 0, 1), 1.9), False)
sketch6.addConstraint(Sketcher.Constraint("Coincident", 1, 3, 0, 3))
sketch6.addConstraint(Sketcher.Constraint("Coincident", 3, 3, 2, 3))
sketch6.addConstraint(Sketcher.Constraint("Coincident", 5, 3, 4, 3))
sketch6.addConstraint(Sketcher.Constraint("Coincident", 7, 3, 6, 3))
sketch6.addConstraint(Sketcher.Constraint("Equal", 0, 2))
sketch6.addConstraint(Sketcher.Constraint("Equal", 1, 3))
sketch6.addConstraint(Sketcher.Constraint("Equal", 2, 4))
sketch6.addConstraint(Sketcher.Constraint("Equal", 3, 5))
sketch6.addConstraint(Sketcher.Constraint("Equal", 4, 6))
sketch6.addConstraint(Sketcher.Constraint("Equal", 5, 7))
sketch6.addConstraint(Sketcher.Constraint("Horizontal", 1, 3, 2, 3))
sketch6.addConstraint(Sketcher.Constraint("Horizontal", 5, 3, 6, 3))
sketch6.addConstraint(Sketcher.Constraint("Vertical", 3, 3, 4, 3))
sketch6.addConstraint(Sketcher.Constraint("Vertical", 1, 3, 6, 3))
sketch6.addConstraint(Sketcher.Constraint("Diameter", 0, Q("9 mm")))
sketch6.addConstraint(Sketcher.Constraint("Diameter", 1, Q("3.8 mm")))
sketch6.addConstraint(Sketcher.Constraint("DistanceY", -1, 1, 0, 3, Q("153.633402 mm")))
sketch6.addConstraint(Sketcher.Constraint("DistanceY", -1, 1, 4, 3, Q("103.189422 mm")))
sketch6.addConstraint(Sketcher.Constraint("DistanceX", 0, 3, -1, 1, Q("325.057795 mm")))
sketch6.addConstraint(Sketcher.Constraint("DistanceX", 2, 3, -1, 1, Q("276.123993 mm")))
pad6 = body3.newObject("PartDesign::Pad", "Pad005")
pad6.Profile = sketch6
pad6.Length = 58

# Sketch on XZ plane
sketch7 = body3.newObject("Sketcher::SketchObject", "Sketch006")
sketch7.AttachmentSupport = (doc.getObject("XZ_Plane002"), [""])
sketch7.MapMode = "FlatFace"
sketch7.addGeometry(Part.Circle(Vector(-325.1, 153.6, 0), Vector(0, 0, 1), 1.9), False)
sketch7.addGeometry(Part.Circle(Vector(-276.1, 153.6, 0), Vector(0, 0, 1), 1.9), False)
sketch7.addGeometry(Part.Circle(Vector(-276.1, 103.2, 0), Vector(0, 0, 1), 1.9), False)
sketch7.addGeometry(Part.Circle(Vector(-325.1, 103.2, 0), Vector(0, 0, 1), 1.9), False)
sketch7.addConstraint(Sketcher.Constraint("Equal", 0, 1))
sketch7.addConstraint(Sketcher.Constraint("Equal", 1, 2))
sketch7.addConstraint(Sketcher.Constraint("Equal", 2, 3))
sketch7.addConstraint(Sketcher.Constraint("Horizontal", 0, 3, 1, 3))
sketch7.addConstraint(Sketcher.Constraint("Horizontal", 2, 3, 3, 3))
sketch7.addConstraint(Sketcher.Constraint("Vertical", 1, 3, 2, 3))
sketch7.addConstraint(Sketcher.Constraint("Vertical", 0, 3, 3, 3))
sketch7.addConstraint(Sketcher.Constraint("Diameter", 0, Q("3.8 mm")))
sketch7.addConstraint(Sketcher.Constraint("DistanceY", -1, 1, 0, 3, Q("153.633402 mm")))
sketch7.addConstraint(Sketcher.Constraint("DistanceY", -1, 1, 2, 3, Q("103.189422 mm")))
sketch7.addConstraint(Sketcher.Constraint("DistanceX", 0, 3, -1, 1, Q("325.057795 mm")))
sketch7.addConstraint(Sketcher.Constraint("DistanceX", 1, 3, -1, 1, Q("276.123993 mm")))
pad7 = body3.newObject("PartDesign::Pad", "Pad006")
pad7.Profile = sketch7
pad7.Length = 68

doc.recompute()
